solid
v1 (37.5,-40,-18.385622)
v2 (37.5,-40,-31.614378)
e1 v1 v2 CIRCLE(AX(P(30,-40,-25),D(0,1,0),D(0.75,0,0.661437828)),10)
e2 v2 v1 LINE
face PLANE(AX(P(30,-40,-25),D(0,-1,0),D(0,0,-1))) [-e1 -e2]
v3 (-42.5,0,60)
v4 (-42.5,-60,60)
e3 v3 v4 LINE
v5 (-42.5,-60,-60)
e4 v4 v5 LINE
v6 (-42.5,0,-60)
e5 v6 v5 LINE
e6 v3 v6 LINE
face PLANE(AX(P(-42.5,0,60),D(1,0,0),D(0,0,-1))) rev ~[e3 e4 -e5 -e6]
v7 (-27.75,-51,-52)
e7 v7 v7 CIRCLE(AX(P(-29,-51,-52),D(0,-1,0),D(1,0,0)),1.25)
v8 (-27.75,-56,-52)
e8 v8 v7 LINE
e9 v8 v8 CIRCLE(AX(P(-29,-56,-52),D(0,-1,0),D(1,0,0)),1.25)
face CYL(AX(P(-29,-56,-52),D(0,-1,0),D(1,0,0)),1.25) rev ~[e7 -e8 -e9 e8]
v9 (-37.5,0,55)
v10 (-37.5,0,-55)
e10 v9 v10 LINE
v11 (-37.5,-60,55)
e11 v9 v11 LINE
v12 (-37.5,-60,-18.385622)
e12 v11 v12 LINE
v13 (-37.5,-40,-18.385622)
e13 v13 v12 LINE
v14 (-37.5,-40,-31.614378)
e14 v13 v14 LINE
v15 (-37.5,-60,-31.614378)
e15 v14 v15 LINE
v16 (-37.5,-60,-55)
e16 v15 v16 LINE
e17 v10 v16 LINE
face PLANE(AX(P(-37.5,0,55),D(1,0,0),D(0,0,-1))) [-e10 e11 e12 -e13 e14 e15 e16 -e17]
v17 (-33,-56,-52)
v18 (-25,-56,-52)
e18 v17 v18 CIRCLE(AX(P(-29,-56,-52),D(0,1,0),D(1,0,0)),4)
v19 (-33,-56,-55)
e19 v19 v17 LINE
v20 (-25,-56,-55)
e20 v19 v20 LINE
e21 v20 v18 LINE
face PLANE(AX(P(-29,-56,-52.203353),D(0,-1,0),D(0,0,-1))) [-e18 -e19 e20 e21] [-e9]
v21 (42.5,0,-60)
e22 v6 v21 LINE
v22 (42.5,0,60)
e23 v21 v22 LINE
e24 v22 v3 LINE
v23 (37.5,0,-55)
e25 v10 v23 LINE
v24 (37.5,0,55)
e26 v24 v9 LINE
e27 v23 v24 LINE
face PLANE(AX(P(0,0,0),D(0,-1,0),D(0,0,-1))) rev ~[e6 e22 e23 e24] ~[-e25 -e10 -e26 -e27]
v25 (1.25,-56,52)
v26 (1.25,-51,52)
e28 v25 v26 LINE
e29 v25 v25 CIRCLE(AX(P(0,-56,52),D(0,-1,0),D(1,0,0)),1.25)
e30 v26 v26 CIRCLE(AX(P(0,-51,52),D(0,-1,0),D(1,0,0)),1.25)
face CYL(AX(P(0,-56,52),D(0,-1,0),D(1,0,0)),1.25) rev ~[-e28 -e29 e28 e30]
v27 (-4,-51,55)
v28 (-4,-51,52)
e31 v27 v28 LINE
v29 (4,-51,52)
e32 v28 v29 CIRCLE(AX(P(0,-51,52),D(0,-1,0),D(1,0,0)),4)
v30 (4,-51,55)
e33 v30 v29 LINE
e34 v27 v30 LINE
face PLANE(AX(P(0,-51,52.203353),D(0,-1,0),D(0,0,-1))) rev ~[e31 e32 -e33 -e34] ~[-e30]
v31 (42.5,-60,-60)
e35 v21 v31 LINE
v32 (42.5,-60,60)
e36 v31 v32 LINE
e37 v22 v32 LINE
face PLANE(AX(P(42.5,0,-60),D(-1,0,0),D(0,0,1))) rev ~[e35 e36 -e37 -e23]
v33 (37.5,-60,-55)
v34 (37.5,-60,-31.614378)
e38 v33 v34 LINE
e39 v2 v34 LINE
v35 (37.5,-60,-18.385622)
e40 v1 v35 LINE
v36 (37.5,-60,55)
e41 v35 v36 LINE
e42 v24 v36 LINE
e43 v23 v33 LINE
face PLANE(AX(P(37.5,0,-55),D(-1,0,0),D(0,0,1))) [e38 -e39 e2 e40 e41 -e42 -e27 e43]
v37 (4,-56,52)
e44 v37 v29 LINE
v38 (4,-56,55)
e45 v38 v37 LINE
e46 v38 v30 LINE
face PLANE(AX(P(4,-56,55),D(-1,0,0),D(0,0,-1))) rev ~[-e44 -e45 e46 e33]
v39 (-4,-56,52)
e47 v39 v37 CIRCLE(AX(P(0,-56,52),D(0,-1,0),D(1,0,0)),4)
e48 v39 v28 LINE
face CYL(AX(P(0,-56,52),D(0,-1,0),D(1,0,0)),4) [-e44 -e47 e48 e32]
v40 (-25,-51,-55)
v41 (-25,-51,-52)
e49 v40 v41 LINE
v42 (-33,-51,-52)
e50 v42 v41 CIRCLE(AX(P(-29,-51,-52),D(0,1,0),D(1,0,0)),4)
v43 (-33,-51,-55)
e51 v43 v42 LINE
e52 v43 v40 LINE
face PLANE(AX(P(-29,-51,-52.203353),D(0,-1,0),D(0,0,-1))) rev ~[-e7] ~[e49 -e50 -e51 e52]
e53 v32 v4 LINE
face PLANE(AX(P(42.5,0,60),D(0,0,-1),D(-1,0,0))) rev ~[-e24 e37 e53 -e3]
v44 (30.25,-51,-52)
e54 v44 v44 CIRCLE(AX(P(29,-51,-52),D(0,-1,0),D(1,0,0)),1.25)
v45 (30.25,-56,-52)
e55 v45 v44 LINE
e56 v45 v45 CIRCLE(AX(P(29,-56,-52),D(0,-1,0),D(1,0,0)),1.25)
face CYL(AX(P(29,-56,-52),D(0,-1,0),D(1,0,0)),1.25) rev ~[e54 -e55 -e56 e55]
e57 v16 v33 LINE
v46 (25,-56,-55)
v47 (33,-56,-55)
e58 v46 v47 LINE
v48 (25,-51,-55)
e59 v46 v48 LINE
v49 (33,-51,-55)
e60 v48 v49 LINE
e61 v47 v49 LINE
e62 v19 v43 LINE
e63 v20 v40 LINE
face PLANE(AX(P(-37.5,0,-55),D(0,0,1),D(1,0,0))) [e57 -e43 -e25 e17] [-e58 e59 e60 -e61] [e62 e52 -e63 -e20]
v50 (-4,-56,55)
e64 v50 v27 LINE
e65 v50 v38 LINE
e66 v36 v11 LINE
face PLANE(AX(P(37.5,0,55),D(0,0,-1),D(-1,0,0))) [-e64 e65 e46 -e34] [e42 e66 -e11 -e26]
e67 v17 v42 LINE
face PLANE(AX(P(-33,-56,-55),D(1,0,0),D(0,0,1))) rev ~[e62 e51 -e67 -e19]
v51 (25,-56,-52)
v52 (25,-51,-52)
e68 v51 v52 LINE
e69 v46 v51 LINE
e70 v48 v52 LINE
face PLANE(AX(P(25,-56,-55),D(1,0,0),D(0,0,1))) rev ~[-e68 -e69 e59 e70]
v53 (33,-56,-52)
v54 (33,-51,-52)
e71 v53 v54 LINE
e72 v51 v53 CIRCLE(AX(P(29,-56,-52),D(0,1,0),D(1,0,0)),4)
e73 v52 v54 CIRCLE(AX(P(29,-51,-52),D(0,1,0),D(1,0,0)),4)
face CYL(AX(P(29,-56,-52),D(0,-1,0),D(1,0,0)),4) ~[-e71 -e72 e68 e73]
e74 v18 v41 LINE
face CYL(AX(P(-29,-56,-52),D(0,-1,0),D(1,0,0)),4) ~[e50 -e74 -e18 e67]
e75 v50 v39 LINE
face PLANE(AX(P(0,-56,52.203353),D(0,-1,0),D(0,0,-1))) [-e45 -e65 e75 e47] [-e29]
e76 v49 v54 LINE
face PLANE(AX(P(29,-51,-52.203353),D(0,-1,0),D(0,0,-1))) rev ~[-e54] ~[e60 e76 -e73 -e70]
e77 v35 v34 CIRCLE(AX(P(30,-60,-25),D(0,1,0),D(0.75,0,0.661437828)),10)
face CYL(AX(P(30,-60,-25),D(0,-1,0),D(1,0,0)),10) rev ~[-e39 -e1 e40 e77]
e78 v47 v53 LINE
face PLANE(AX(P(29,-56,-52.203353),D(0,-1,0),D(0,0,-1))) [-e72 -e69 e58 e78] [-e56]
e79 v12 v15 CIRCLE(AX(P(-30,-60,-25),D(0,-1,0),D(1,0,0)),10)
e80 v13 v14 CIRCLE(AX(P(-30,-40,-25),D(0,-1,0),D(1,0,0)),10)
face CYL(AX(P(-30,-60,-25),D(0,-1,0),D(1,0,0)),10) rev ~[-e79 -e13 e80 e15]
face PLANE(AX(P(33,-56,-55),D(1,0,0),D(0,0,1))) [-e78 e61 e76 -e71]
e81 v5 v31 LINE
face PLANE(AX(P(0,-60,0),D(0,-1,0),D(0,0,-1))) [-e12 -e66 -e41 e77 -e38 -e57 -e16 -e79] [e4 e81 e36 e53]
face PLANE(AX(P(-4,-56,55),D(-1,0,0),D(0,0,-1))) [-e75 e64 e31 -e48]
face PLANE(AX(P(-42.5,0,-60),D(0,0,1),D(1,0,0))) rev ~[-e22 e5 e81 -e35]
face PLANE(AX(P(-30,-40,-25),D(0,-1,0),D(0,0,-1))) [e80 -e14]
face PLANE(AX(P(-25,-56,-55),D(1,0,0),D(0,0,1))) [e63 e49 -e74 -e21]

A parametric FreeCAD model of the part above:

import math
import FreeCAD as App
import Part
import Sketcher
from FreeCAD import Vector


def add_polygon(sketch, points):
    """Adds a closed chain of lines whose ends are joined by coincident constraints."""
    first, n = sketch.GeometryCount, len(points)
    for a, b in zip(points, points[1:] + points[:1]):
        sketch.addGeometry(Part.LineSegment(App.Vector(*a, 0), App.Vector(*b, 0)), False)
    for i in range(n):
        sketch.addConstraint(Sketcher.Constraint("Coincident", first + i, 2, first + (i + 1) % n, 1))

doc = App.newDocument("Part")
body = doc.addObject("PartDesign::Body", "Body")

# Sketch on XZ plane
sketch1 = doc.addObject("Sketcher::SketchObject", "Sketch")
body.addObject(sketch1)
sketch1.AttachmentSupport = (doc.XZ_Plane, [""])
sketch1.MapMode = "FlatFace"
add_polygon(sketch1, [(-42.5, 60), (-42.5, -60), (42.5, -60), (42.5, 60)])  # lines 0-3
add_polygon(sketch1, [(37.5, -55), (-37.5, -55), (-37.5, 55), (37.5, 55)])  # lines 4-7
sketch1.addConstraint([
    Sketcher.Constraint("Vertical", 0),
    Sketcher.Constraint("Horizontal", 1),
    Sketcher.Constraint("Vertical", 2),
    Sketcher.Constraint("Horizontal", 3),
    Sketcher.Constraint("Horizontal", 4),
    Sketcher.Constraint("Vertical", 5),
    Sketcher.Constraint("Horizontal", 6),
    Sketcher.Constraint("Vertical", 7),
    Sketcher.Constraint("Symmetric", 0, 2, 2, 2, -1, 1),
    Sketcher.Constraint("Symmetric", 4, 2, 6, 2, -1, 1),
    Sketcher.Constraint("DistanceX", 1, 1, 1, 2, 85.0),
    Sketcher.Constraint("DistanceX", 4, 2, 4, 1, 75.0),
    Sketcher.Constraint("DistanceY", 0, 2, 0, 1, 120.0),
    Sketcher.Constraint("DistanceY", 5, 1, 5, 2, 110.0),
])
pad1 = doc.addObject("PartDesign::Pad", "Pad")
body.addObject(pad1)
pad1.Profile = sketch1
pad1.Length = 60

# Sketch on XZ plane
sketch2 = doc.addObject("Sketcher::SketchObject", "Sketch001")
body.addObject(sketch2)
sketch2.AttachmentSupport = (doc.XZ_Plane, [""])
sketch2.MapMode = "FlatFace"
sketch2.AttachmentOffset = App.Placement(Vector(0, 0, 60), App.Rotation())
sketch2.addGeometry([
    Part.Circle(Vector(30, -25, 0), Vector(0, 0, 1), 10),
    Part.Circle(Vector(-30, -25, 0), Vector(0, 0, 1), 10),
], False)
sketch2.addConstraint([
    Sketcher.Constraint("Equal", 0, 1),
    Sketcher.Constraint("Symmetric", 0, 3, 1, 3, -2),
    Sketcher.Constraint("Diameter", 0, 20.0),
    Sketcher.Constraint("DistanceX", -1, 1, 0, 3, 30.0),
    Sketcher.Constraint("DistanceY", 0, 3, -1, 1, 25.0),
])
pocket1 = doc.addObject("PartDesign::Pocket", "Pocket")
body.addObject(pocket1)
pocket1.Profile = sketch2
pocket1.Length = 20

# Sketch on XZ plane
sketch3 = doc.addObject("Sketcher::SketchObject", "Sketch002")
body.addObject(sketch3)
sketch3.AttachmentSupport = (doc.XZ_Plane, [""])
sketch3.MapMode = "FlatFace"
sketch3.AttachmentOffset = App.Placement(Vector(0, 0, 56), App.Rotation())
sketch3.addGeometry([
    Part.LineSegment(Vector(-33, -52, 0), Vector(-33, -55, 0)),  # 0
    Part.LineSegment(Vector(-33, -55, 0), Vector(-25, -55, 0)),  # 1
    Part.LineSegment(Vector(-25, -55, 0), Vector(-25, -52, 0)),  # 2
    Part.ArcOfCircle(Part.Circle(Vector(-29, -52, 0), Vector(0, 0, 1), 4), math.radians(0), math.radians(180)),  # 3
    Part.Circle(Vector(-29, -52, 0), Vector(0, 0, 1), 1.25),  # 4
    Part.LineSegment(Vector(25, -52, 0), Vector(25, -55, 0)),  # 5
    Part.LineSegment(Vector(25, -55, 0), Vector(33, -55, 0)),  # 6
    Part.LineSegment(Vector(33, -55, 0), Vector(33, -52, 0)),  # 7
    Part.ArcOfCircle(Part.Circle(Vector(29, -52, 0), Vector(0, 0, 1), 4), math.radians(0), math.radians(180)),  # 8
    Part.Circle(Vector(29, -52, 0), Vector(0, 0, 1), 1.25),  # 9
    Part.LineSegment(Vector(-4, 55, 0), Vector(-4, 52, 0)),  # 10
    Part.ArcOfCircle(Part.Circle(Vector(0, 52, 0), Vector(0, 0, 1), 4), math.radians(180), math.radians(360)),  # 11
    Part.LineSegment(Vector(4, 52, 0), Vector(4, 55, 0)),  # 12
    Part.LineSegment(Vector(4, 55, 0), Vector(-4, 55, 0)),  # 13
    Part.Circle(Vector(0, 52, 0), Vector(0, 0, 1), 1.25),  # 14
], False)
sketch3.addConstraint([
    Sketcher.Constraint("Coincident", 0, 2, 1, 1),
    Sketcher.Constraint("Coincident", 1, 2, 2, 1),
    Sketcher.Constraint("Tangent", 2, 2, 3, 1),
    Sketcher.Constraint("Tangent", 3, 2, 0, 1),
    Sketcher.Constraint("Coincident", 5, 2, 6, 1),
    Sketcher.Constraint("Coincident", 6, 2, 7, 1),
    Sketcher.Constraint("Tangent", 7, 2, 8, 1),
    Sketcher.Constraint("Tangent", 8, 2, 5, 1),
    Sketcher.Constraint("Tangent", 10, 2, 11, 1),
    Sketcher.Constraint("Tangent", 11, 2, 12, 1),
    Sketcher.Constraint("Coincident", 12, 2, 13, 1),
    Sketcher.Constraint("Coincident", 13, 2, 10, 1),
    Sketcher.Constraint("Vertical", 0),
    Sketcher.Constraint("Horizontal", 1),
    Sketcher.Constraint("Vertical", 2),
    Sketcher.Constraint("Vertical", 5),
    Sketcher.Constraint("Horizontal", 6),
    Sketcher.Constraint("Vertical", 7),
    Sketcher.Constraint("Vertical", 10),
    Sketcher.Constraint("Vertical", 12),
    Sketcher.Constraint("Horizontal", 13),
    Sketcher.Constraint("Coincident", 4, 3, 3, 3),
    Sketcher.Constraint("Coincident", 9, 3, 8, 3),
    Sketcher.Constraint("Coincident", 14, 3, 11, 3),
    Sketcher.Constraint("Equal", 3, 8),
    Sketcher.Constraint("Equal", 4, 9),
    Sketcher.Constraint("Equal", 8, 11),
    Sketcher.Constraint("Equal", 9, 14),
    Sketcher.Constraint("Symmetric", 3, 3, 8, 3, -2),
    Sketcher.Constraint("PointOnObject", 11, 3, -2),
    Sketcher.Constraint("Horizontal", 1, 2, 5, 2),
    Sketcher.Constraint("Equal", 7, 10),
    Sketcher.Constraint("Radius", 3, 4.0),
    Sketcher.Constraint("DistanceX", 1, 2, -1, 1, 25.0),
    Sketcher.Constraint("Diameter", 4, 2.5),
    Sketcher.Constraint("DistanceY", 0, 2, 0, 1, 3.0),
    Sketcher.Constraint("DistanceY", 3, 3, -1, 1, 52.0),
    Sketcher.Constraint("DistanceY", -1, 1, 11, 3, 52.0),
])
pad2 = doc.addObject("PartDesign::Pad", "Pad001")
body.addObject(pad2)
pad2.Profile = sketch3
pad2.Length = 5
pad2.Reversed = True

doc.recompute()
